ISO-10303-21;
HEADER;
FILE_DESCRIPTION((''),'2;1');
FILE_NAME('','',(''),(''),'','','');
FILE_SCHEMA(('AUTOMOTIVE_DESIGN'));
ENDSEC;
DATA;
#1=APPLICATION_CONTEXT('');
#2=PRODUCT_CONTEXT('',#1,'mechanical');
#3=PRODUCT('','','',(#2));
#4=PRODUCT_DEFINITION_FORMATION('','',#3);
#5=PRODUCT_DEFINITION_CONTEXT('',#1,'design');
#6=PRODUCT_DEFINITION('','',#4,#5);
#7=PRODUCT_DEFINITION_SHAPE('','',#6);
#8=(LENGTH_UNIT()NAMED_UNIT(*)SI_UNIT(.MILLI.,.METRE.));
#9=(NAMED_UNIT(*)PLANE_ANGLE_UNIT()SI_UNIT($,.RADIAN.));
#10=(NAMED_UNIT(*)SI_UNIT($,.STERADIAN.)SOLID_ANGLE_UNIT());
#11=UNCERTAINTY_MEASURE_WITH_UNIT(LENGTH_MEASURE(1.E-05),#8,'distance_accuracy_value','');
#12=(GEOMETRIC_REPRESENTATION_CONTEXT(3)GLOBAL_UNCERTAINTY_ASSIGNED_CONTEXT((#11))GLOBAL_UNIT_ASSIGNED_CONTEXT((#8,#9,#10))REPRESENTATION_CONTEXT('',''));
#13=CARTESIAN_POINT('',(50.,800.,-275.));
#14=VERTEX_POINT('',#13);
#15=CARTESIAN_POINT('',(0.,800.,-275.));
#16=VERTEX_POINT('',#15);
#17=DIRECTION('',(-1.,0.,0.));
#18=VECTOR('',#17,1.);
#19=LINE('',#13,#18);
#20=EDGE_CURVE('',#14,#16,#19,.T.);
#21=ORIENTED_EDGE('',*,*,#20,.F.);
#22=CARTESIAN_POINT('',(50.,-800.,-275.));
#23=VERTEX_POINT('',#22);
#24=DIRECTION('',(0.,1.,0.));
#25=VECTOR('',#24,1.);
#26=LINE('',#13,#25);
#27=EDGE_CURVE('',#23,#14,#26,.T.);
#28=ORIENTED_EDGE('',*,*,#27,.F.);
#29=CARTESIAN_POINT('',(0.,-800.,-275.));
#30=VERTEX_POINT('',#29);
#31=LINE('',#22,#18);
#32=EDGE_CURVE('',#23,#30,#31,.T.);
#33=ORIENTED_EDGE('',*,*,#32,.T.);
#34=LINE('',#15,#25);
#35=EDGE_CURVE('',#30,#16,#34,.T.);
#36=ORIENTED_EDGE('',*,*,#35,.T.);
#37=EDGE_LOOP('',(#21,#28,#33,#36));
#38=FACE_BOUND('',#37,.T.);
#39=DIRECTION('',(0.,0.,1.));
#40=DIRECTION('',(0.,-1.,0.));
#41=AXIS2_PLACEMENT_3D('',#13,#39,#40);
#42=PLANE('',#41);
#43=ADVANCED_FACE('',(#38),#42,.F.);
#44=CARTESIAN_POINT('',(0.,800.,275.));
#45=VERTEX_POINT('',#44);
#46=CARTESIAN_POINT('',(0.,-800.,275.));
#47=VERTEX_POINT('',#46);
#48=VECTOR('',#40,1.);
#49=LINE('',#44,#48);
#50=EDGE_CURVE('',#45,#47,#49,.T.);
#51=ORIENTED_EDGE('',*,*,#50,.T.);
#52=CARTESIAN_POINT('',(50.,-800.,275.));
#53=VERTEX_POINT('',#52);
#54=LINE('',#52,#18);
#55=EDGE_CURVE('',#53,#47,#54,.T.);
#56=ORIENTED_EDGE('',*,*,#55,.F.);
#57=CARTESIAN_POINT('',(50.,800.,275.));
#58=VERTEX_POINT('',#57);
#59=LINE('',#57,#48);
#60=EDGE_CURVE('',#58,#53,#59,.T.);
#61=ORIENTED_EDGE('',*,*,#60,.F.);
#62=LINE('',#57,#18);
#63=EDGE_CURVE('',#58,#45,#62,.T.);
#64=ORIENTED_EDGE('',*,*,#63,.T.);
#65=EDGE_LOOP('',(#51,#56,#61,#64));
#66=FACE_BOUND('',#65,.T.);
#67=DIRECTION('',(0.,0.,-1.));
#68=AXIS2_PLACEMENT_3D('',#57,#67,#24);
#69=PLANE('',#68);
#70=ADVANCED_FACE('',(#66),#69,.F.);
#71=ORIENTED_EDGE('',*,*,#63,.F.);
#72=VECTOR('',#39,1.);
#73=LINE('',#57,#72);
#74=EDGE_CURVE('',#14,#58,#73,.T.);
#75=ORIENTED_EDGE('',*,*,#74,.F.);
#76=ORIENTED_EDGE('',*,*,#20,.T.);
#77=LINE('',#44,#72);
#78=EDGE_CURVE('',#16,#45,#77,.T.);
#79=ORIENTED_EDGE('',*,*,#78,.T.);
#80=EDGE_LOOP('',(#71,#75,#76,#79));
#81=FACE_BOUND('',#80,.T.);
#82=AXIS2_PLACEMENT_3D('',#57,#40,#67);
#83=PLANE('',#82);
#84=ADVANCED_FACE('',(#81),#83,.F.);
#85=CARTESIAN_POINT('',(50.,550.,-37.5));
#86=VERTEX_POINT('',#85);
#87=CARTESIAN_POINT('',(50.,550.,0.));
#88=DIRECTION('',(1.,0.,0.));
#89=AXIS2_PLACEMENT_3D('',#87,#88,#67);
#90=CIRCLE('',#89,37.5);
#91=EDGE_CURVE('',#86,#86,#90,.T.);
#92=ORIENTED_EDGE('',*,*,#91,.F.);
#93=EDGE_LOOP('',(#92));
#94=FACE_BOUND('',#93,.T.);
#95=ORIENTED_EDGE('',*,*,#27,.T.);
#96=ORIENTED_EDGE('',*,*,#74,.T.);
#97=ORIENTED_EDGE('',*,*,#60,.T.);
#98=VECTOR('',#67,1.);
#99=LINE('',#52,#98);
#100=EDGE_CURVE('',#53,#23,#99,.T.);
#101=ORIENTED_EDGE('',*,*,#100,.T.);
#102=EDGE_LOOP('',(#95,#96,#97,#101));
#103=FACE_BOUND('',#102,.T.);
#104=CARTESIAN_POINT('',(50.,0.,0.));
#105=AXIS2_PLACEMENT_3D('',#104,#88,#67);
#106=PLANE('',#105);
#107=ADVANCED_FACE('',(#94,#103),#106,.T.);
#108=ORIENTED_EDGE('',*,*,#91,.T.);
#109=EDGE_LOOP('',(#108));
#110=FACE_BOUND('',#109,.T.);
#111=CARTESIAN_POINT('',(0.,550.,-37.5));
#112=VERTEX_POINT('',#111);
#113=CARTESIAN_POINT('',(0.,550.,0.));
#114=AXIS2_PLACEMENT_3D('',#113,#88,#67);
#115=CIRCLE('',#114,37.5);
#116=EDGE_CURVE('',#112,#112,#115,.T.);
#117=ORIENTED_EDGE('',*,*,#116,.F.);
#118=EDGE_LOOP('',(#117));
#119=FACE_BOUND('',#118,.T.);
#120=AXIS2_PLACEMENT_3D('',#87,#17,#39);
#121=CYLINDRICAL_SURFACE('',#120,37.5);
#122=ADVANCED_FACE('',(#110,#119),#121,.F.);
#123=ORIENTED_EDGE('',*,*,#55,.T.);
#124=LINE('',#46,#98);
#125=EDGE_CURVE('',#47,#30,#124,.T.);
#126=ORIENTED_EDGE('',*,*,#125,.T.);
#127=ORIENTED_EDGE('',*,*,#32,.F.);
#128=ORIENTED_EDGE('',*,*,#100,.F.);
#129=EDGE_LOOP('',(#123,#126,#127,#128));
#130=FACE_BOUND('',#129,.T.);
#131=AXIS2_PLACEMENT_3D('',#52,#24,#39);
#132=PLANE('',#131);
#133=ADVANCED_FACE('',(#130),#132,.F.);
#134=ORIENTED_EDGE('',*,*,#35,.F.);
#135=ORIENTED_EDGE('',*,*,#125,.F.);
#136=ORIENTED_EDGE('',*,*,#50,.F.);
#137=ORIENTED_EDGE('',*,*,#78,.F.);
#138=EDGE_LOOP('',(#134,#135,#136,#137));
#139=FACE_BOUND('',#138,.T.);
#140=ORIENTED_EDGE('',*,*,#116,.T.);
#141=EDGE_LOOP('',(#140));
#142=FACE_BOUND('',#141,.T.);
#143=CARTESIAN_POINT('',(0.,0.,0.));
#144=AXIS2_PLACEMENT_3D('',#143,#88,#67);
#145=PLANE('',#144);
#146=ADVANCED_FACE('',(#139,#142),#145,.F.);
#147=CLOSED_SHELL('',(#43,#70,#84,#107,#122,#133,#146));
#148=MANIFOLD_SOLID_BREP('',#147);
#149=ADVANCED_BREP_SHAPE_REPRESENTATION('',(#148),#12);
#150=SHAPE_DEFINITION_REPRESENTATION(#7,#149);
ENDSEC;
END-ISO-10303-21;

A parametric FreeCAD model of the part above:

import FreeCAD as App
import Part
import Sketcher

V = App.Vector


def add_polygon(sketch, points):
    """Adds a closed chain of lines whose ends are joined by coincident constraints."""
    first, n = sketch.GeometryCount, len(points)
    for a, b in zip(points, points[1:] + points[:1]):
        sketch.addGeometry(Part.LineSegment(App.Vector(*a, 0), App.Vector(*b, 0)), False)
    for i in range(n):
        sketch.addConstraint(Sketcher.Constraint("Coincident", first + i, 2, first + (i + 1) % n, 1))

doc = App.newDocument("Part")
body = doc.addObject("PartDesign::Body", "Body")

sketch1 = doc.addObject("Sketcher::SketchObject", "Sketch")
body.addObject(sketch1)
sketch1.AttachmentSupport = (doc.YZ_Plane, [""])
sketch1.MapMode = "FlatFace"
add_polygon(sketch1, [(800, 275), (-800, 275), (-800, -275), (800, -275)])
sketch1.addGeometry(Part.Circle(V(550, 0, 0), V(0, 0, 1), 38), False)
sketch1.addConstraint(Sketcher.Constraint("Horizontal", 0))
sketch1.addConstraint(Sketcher.Constraint("Vertical", 1))
sketch1.addConstraint(Sketcher.Constraint("Horizontal", 2))
sketch1.addConstraint(Sketcher.Constraint("Vertical", 3))
sketch1.addConstraint(Sketcher.Constraint("Symmetric", 0, 2, 2, 2, -1, 1))
sketch1.addConstraint(Sketcher.Constraint("PointOnObject", 4, 3, -1))
sketch1.addConstraint(Sketcher.Constraint("Diameter", 4, 75.0))
sketch1.addConstraint(Sketcher.Constraint("DistanceX", 0, 2, 0, 1, 1600.0))
sketch1.addConstraint(Sketcher.Constraint("DistanceY", 1, 2, 1, 1, 550.0))
sketch1.addConstraint(Sketcher.Constraint("DistanceX", -1, 1, 4, 3, 550.0))
pad1 = doc.addObject("PartDesign::Pad", "Pad")
body.addObject(pad1)
pad1.Profile = sketch1
pad1.Length = 50

doc.recompute()
